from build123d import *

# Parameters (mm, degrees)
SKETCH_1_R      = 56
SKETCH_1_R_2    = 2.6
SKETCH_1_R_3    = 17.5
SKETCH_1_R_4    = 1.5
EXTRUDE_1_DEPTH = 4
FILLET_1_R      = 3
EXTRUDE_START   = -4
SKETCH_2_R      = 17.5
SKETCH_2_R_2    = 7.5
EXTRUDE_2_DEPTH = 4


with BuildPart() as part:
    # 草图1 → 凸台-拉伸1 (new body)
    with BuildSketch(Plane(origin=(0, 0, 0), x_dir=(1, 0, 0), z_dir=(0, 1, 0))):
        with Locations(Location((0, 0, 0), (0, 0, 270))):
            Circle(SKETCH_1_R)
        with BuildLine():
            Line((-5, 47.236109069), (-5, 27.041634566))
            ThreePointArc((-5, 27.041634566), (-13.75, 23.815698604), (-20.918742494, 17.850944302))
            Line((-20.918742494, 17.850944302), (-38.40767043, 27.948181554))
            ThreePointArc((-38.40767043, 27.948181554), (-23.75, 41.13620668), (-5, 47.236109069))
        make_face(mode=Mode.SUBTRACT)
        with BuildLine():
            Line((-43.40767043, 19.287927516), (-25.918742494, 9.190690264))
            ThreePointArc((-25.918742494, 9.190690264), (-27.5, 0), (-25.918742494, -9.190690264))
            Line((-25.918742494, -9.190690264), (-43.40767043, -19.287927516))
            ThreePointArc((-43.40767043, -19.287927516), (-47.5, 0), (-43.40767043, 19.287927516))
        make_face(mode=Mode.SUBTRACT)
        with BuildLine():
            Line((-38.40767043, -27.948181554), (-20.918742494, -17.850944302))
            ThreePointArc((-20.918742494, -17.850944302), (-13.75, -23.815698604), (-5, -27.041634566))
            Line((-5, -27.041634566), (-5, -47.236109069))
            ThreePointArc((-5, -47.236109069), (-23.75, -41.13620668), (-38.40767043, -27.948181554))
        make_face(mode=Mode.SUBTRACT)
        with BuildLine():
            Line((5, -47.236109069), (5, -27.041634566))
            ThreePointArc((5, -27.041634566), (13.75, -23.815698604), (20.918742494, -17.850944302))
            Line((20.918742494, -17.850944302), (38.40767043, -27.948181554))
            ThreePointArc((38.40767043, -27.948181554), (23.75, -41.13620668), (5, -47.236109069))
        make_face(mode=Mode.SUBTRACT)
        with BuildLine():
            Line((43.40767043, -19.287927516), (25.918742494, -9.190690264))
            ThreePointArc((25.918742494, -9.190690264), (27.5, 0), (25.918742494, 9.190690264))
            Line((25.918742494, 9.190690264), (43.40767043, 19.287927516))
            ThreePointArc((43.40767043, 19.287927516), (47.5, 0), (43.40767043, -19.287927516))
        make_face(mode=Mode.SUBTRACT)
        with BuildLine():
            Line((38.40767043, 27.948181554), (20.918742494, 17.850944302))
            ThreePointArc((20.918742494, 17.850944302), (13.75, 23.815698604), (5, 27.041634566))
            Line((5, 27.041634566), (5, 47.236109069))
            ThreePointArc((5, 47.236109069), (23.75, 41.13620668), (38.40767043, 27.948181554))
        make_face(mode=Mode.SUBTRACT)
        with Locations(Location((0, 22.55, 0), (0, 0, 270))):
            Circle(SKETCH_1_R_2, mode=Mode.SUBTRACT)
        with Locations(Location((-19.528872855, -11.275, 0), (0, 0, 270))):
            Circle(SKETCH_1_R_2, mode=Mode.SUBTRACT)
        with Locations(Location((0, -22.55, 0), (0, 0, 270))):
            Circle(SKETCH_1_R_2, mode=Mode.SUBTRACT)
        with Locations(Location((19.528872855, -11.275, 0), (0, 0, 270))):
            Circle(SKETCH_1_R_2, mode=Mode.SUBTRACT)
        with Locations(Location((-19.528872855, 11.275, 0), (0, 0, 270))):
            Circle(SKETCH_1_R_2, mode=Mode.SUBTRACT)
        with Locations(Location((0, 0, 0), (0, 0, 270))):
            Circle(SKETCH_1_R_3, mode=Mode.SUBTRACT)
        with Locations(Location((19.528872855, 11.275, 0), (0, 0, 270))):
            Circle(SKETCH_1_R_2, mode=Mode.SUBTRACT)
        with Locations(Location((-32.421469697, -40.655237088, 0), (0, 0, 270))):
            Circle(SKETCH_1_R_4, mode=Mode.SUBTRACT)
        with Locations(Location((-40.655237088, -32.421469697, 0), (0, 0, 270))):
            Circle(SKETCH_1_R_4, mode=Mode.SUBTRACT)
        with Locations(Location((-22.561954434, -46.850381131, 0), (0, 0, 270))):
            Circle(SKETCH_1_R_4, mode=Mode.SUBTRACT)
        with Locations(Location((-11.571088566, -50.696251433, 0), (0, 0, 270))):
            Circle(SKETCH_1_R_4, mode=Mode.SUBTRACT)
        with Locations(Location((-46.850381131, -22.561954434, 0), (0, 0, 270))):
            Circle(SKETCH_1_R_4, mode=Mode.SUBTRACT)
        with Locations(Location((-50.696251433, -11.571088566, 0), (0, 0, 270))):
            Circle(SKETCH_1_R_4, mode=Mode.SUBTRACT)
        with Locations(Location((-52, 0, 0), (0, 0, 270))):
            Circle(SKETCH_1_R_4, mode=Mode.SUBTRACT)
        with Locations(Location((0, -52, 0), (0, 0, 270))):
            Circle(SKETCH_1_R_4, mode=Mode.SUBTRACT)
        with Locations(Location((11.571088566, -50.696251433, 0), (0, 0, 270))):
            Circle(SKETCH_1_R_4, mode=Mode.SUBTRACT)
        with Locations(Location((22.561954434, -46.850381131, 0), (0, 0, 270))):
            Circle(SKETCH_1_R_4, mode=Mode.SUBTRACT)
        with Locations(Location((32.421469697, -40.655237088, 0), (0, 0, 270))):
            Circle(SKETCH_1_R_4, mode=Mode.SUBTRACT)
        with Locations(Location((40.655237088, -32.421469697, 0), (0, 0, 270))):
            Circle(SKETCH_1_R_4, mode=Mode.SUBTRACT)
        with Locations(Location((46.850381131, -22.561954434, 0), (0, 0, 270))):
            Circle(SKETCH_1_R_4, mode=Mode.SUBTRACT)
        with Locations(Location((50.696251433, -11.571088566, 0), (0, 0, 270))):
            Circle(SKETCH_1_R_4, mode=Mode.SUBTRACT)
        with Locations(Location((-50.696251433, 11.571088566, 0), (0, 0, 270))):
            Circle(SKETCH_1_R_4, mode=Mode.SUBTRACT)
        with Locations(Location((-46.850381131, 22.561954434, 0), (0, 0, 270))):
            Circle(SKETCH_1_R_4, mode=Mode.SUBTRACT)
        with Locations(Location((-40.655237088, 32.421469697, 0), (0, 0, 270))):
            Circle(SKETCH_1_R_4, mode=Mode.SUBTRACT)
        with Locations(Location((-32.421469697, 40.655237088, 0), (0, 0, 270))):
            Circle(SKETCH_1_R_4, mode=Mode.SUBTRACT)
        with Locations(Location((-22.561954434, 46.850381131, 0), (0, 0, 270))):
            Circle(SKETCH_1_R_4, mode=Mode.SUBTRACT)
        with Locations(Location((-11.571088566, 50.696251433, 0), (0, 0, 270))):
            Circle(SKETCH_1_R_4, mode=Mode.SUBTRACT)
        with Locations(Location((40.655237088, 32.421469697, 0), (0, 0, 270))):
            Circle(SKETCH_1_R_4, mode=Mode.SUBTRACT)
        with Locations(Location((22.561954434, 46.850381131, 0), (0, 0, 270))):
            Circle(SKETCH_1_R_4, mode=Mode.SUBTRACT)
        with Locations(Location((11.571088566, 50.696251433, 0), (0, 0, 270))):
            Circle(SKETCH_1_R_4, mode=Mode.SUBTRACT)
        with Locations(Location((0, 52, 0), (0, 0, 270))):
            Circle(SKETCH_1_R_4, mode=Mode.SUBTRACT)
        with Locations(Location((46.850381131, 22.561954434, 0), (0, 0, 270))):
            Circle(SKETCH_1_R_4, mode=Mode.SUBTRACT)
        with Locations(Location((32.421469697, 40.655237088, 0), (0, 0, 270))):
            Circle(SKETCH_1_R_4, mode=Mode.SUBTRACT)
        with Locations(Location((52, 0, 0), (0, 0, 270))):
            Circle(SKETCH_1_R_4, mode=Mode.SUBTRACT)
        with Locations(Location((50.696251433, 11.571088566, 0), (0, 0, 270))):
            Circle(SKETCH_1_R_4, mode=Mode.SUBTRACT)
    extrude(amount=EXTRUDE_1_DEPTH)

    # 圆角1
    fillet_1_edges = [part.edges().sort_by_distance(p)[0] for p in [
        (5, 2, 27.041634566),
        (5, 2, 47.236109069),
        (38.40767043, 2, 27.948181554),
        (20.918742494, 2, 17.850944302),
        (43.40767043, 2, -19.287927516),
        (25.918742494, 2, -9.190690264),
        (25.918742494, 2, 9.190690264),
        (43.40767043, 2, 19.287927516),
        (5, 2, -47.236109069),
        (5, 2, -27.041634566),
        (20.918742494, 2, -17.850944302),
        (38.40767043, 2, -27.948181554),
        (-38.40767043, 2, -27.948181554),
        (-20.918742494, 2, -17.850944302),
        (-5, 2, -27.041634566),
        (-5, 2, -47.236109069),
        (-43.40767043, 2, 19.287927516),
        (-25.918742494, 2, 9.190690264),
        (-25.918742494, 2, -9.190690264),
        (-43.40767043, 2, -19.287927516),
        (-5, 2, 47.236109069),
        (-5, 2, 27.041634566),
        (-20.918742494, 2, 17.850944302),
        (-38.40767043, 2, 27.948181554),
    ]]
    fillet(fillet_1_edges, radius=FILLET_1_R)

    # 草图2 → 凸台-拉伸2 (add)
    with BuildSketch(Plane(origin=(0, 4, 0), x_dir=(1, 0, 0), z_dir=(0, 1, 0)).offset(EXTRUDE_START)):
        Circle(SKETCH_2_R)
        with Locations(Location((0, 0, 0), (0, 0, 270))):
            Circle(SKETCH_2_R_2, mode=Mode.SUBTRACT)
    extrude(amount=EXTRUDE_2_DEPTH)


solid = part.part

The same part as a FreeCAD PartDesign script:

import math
import FreeCAD as App
import Part
import Sketcher
Q = App.Units.Quantity


def edges_at(feature, points):
    """Names of the edges that pass closest to the given points."""
    edges = feature.Shape.Edges
    near = lambda p: min(range(len(edges)), key=lambda i: edges[i].distToShape(Part.Vertex(*p))[0])
    return sorted({f"Edge{near(p) + 1}" for p in points})

doc = App.newDocument("Part")
body = doc.addObject("PartDesign::Body", "Body")

sketch1 = doc.addObject("Sketcher::SketchObject", "Sketch")
body.addObject(sketch1)
sketch1.AttachmentSupport = (doc.XZ_Plane, [""])
sketch1.MapMode = "FlatFace"
sketch1.addGeometry([
    Part.Circle(App.Vector(0, 0, 0), App.Vector(0, 0, 1), 56),
    Part.Circle(App.Vector(-40.655237, -32.42147, 0), App.Vector(0, 0, 1), 1.5),
    Part.Circle(App.Vector(-32.42147, -40.655237, 0), App.Vector(0, 0, 1), 1.5),
    Part.Circle(App.Vector(-46.850381, -22.561954, 0), App.Vector(0, 0, 1), 1.5),
    Part.Circle(App.Vector(-50.696251, -11.571089, 0), App.Vector(0, 0, 1), 1.5),
    Part.Circle(App.Vector(-22.561954, -46.850381, 0), App.Vector(0, 0, 1), 1.5),
    Part.ArcOfCircle(Part.Circle(App.Vector(0, 0, 0), App.Vector(0, 0, 1), 47.5), math.radians(-143.957672), math.radians(-96.042328)),
    Part.LineSegment(App.Vector(-5, -47.236109, 0), App.Vector(-5, -27.041635, 0)),
    Part.ArcOfCircle(Part.Circle(App.Vector(0, 0, 0), App.Vector(0, 0, 1), 27.5), math.radians(-139.524318), math.radians(-100.475682)),
    Part.LineSegment(App.Vector(-20.918742, -17.850944, 0), App.Vector(-38.40767, -27.948182, 0)),
    Part.Circle(App.Vector(-11.571089, -50.696251, 0), App.Vector(0, 0, 1), 1.5),
    Part.Circle(App.Vector(0, -52, 0), App.Vector(0, 0, 1), 1.5),
    Part.Circle(App.Vector(-19.528873, -11.275, 0), App.Vector(0, 0, 1), 2.6),
    Part.Circle(App.Vector(0, -22.55, 0), App.Vector(0, 0, 1), 2.6),
    Part.Circle(App.Vector(0, 0, 0), App.Vector(0, 0, 1), 17.5),
    Part.Circle(App.Vector(-52, 0, 0), App.Vector(0, 0, 1), 1.5),
    Part.Circle(App.Vector(-50.696251, 11.571089, 0), App.Vector(0, 0, 1), 1.5),
    Part.Circle(App.Vector(-46.850381, 22.561954, 0), App.Vector(0, 0, 1), 1.5),
    Part.ArcOfCircle(Part.Circle(App.Vector(0, 0, 0), App.Vector(0, 0, 1), 47.5), math.radians(156.042328), math.radians(203.957672)),
    Part.LineSegment(App.Vector(-43.40767, -19.287928, 0), App.Vector(-25.918742, -9.19069, 0)),
    Part.ArcOfCircle(Part.Circle(App.Vector(0, 0, 0), App.Vector(0, 0, 1), 27.5), math.radians(160.475682), math.radians(199.524318)),
    Part.LineSegment(App.Vector(-25.918742, 9.19069, 0), App.Vector(-43.40767, 19.287928, 0)),
    Part.Circle(App.Vector(-40.655237, 32.42147, 0), App.Vector(0, 0, 1), 1.5),
    Part.Circle(App.Vector(-32.42147, 40.655237, 0), App.Vector(0, 0, 1), 1.5),
    Part.Circle(App.Vector(-19.528873, 11.275, 0), App.Vector(0, 0, 1), 2.6),
    Part.ArcOfCircle(Part.Circle(App.Vector(0, 0, 0), App.Vector(0, 0, 1), 47.5), math.radians(96.042328), math.radians(143.957672)),
    Part.LineSegment(App.Vector(-38.40767, 27.948182, 0), App.Vector(-20.918742, 17.850944, 0)),
    Part.ArcOfCircle(Part.Circle(App.Vector(0, 0, 0), App.Vector(0, 0, 1), 27.5), math.radians(100.475682), math.radians(139.524318)),
    Part.LineSegment(App.Vector(-5, 27.041635, 0), App.Vector(-5, 47.236109, 0)),
    Part.Circle(App.Vector(-22.561954, 46.850381, 0), App.Vector(0, 0, 1), 1.5),
    Part.Circle(App.Vector(-11.571089, 50.696251, 0), App.Vector(0, 0, 1), 1.5),
    Part.Circle(App.Vector(11.571089, -50.696251, 0), App.Vector(0, 0, 1), 1.5),
    Part.Circle(App.Vector(22.561954, -46.850381, 0), App.Vector(0, 0, 1), 1.5),
    Part.ArcOfCircle(Part.Circle(App.Vector(0, 0, 0), App.Vector(0, 0, 1), 47.5), math.radians(-83.957672), math.radians(-36.042328)),
    Part.LineSegment(App.Vector(38.40767, -27.948182, 0), App.Vector(20.918742, -17.850944, 0)),
    Part.ArcOfCircle(Part.Circle(App.Vector(0, 0, 0), App.Vector(0, 0, 1), 27.5), math.radians(-79.524318), math.radians(-40.475682)),
    Part.LineSegment(App.Vector(5, -27.041635, 0), App.Vector(5, -47.236109, 0)),
    Part.Circle(App.Vector(19.528873, -11.275, 0), App.Vector(0, 0, 1), 2.6),
    Part.Circle(App.Vector(32.42147, -40.655237, 0), App.Vector(0, 0, 1), 1.5),
    Part.Circle(App.Vector(40.655237, -32.42147, 0), App.Vector(0, 0, 1), 1.5),
    Part.ArcOfCircle(Part.Circle(App.Vector(0, 0, 0), App.Vector(0, 0, 1), 47.5), math.radians(-23.957672), math.radians(23.957672)),
    Part.LineSegment(App.Vector(43.40767, 19.287928, 0), App.Vector(25.918742, 9.19069, 0)),
    Part.ArcOfCircle(Part.Circle(App.Vector(0, 0, 0), App.Vector(0, 0, 1), 27.5), math.radians(-19.524318), math.radians(19.524318)),
    Part.LineSegment(App.Vector(25.918742, -9.19069, 0), App.Vector(43.40767, -19.287928, 0)),
    Part.Circle(App.Vector(46.850381, -22.561954, 0), App.Vector(0, 0, 1), 1.5),
    Part.Circle(App.Vector(50.696251, -11.571089, 0), App.Vector(0, 0, 1), 1.5),
    Part.Circle(App.Vector(52, 0, 0), App.Vector(0, 0, 1), 1.5),
    Part.Circle(App.Vector(0, 22.55, 0), App.Vector(0, 0, 1), 2.6),
    Part.Circle(App.Vector(19.528873, 11.275, 0), App.Vector(0, 0, 1), 2.6),
    Part.Circle(App.Vector(0, 52, 0), App.Vector(0, 0, 1), 1.5),
    Part.Circle(App.Vector(11.571089, 50.696251, 0), App.Vector(0, 0, 1), 1.5),
    Part.ArcOfCircle(Part.Circle(App.Vector(0, 0, 0), App.Vector(0, 0, 1), 47.5), math.radians(36.042328), math.radians(83.957672)),
    Part.LineSegment(App.Vector(5, 47.236109, 0), App.Vector(5, 27.041635, 0)),
    Part.ArcOfCircle(Part.Circle(App.Vector(0, 0, 0), App.Vector(0, 0, 1), 27.5), math.radians(40.475682), math.radians(79.524318)),
    Part.LineSegment(App.Vector(20.918742, 17.850944, 0), App.Vector(38.40767, 27.948182, 0)),
    Part.Circle(App.Vector(22.561954, 46.850381, 0), App.Vector(0, 0, 1), 1.5),
    Part.Circle(App.Vector(50.696251, 11.571089, 0), App.Vector(0, 0, 1), 1.5),
    Part.Circle(App.Vector(46.850381, 22.561954, 0), App.Vector(0, 0, 1), 1.5),
    Part.Circle(App.Vector(32.42147, 40.655237, 0), App.Vector(0, 0, 1), 1.5),
    Part.Circle(App.Vector(40.655237, 32.42147, 0), App.Vector(0, 0, 1), 1.5),
], False)
sketch1.addConstraint([
    Sketcher.Constraint("Coincident", 6, 2, 7, 1),
    Sketcher.Constraint("Coincident", 7, 2, 8, 2),
    Sketcher.Constraint("Coincident", 8, 1, 9, 1),
    Sketcher.Constraint("Coincident", 9, 2, 6, 1),
    Sketcher.Constraint("Coincident", 18, 2, 19, 1),
    Sketcher.Constraint("Coincident", 19, 2, 20, 2),
    Sketcher.Constraint("Coincident", 20, 1, 21, 1),
    Sketcher.Constraint("Coincident", 21, 2, 18, 1),
    Sketcher.Constraint("Coincident", 25, 2, 26, 1),
    Sketcher.Constraint("Coincident", 26, 2, 27, 2),
    Sketcher.Constraint("Coincident", 27, 1, 28, 1),
    Sketcher.Constraint("Coincident", 28, 2, 25, 1),
    Sketcher.Constraint("Coincident", 33, 2, 34, 1),
    Sketcher.Constraint("Coincident", 34, 2, 35, 2),
    Sketcher.Constraint("Coincident", 35, 1, 36, 1),
    Sketcher.Constraint("Coincident", 36, 2, 33, 1),
    Sketcher.Constraint("Coincident", 40, 2, 41, 1),
    Sketcher.Constraint("Coincident", 41, 2, 42, 2),
    Sketcher.Constraint("Coincident", 42, 1, 43, 1),
    Sketcher.Constraint("Coincident", 43, 2, 40, 1),
    Sketcher.Constraint("Coincident", 51, 2, 52, 1),
    Sketcher.Constraint("Coincident", 52, 2, 53, 2),
    Sketcher.Constraint("Coincident", 53, 1, 54, 1),
    Sketcher.Constraint("Coincident", 54, 2, 51, 1),
    Sketcher.Constraint("Vertical", 7),
    Sketcher.Constraint("Vertical", 28),
    Sketcher.Constraint("Vertical", 36),
    Sketcher.Constraint("Vertical", 52),
    Sketcher.Constraint("Coincident", 0, 3, -1, 1),
    Sketcher.Constraint("Coincident", 6, 3, -1, 1),
    Sketcher.Constraint("Coincident", 8, 3, -1, 1),
    Sketcher.Constraint("Coincident", 14, 3, -1, 1),
    Sketcher.Constraint("Coincident", 18, 3, -1, 1),
    Sketcher.Constraint("Coincident", 20, 3, -1, 1),
    Sketcher.Constraint("Coincident", 25, 3, -1, 1),
    Sketcher.Constraint("Coincident", 27, 3, -1, 1),
    Sketcher.Constraint("Coincident", 33, 3, -1, 1),
    Sketcher.Constraint("Coincident", 35, 3, -1, 1),
    Sketcher.Constraint("Coincident", 40, 3, -1, 1),
    Sketcher.Constraint("Coincident", 42, 3, -1, 1),
    Sketcher.Constraint("Coincident", 51, 3, -1, 1),
    Sketcher.Constraint("Coincident", 53, 3, -1, 1),
    Sketcher.Constraint("Equal", 1, 2),
    Sketcher.Constraint("Equal", 2, 3),
    Sketcher.Constraint("Equal", 3, 4),
    Sketcher.Constraint("Equal", 4, 5),
    Sketcher.Constraint("Equal", 5, 10),
    Sketcher.Constraint("Equal", 10, 11),
    Sketcher.Constraint("Equal", 12, 13),
    Sketcher.Constraint("Equal", 11, 15),
    Sketcher.Constraint("Equal", 15, 16),
    Sketcher.Constraint("Equal", 16, 17),
    Sketcher.Constraint("Equal", 6, 18),
    Sketcher.Constraint("Equal", 8, 20),
    Sketcher.Constraint("Equal", 17, 22),
    Sketcher.Constraint("Equal", 22, 23),
    Sketcher.Constraint("Equal", 13, 24),
    Sketcher.Constraint("Equal", 18, 25),
    Sketcher.Constraint("Equal", 20, 27),
    Sketcher.Constraint("Equal", 23, 29),
    Sketcher.Constraint("Equal", 29, 30),
    Sketcher.Constraint("Equal", 30, 31),
    Sketcher.Constraint("Equal", 31, 32),
    Sketcher.Constraint("Equal", 25, 33),
    Sketcher.Constraint("Equal", 27, 35),
    Sketcher.Constraint("Equal", 24, 37),
    Sketcher.Constraint("Equal", 32, 38),
    Sketcher.Constraint("Equal", 38, 39),
    Sketcher.Constraint("Equal", 33, 40),
    Sketcher.Constraint("Equal", 35, 42),
    Sketcher.Constraint("Equal", 39, 44),
    Sketcher.Constraint("Equal", 44, 45),
    Sketcher.Constraint("Equal", 45, 46),
    Sketcher.Constraint("Equal", 37, 47),
    Sketcher.Constraint("Equal", 47, 48),
    Sketcher.Constraint("Equal", 46, 49),
    Sketcher.Constraint("Equal", 49, 50),
    Sketcher.Constraint("Equal", 40, 51),
    Sketcher.Constraint("Equal", 42, 53),
    Sketcher.Constraint("Equal", 50, 55),
    Sketcher.Constraint("Equal", 55, 56),
    Sketcher.Constraint("Equal", 56, 57),
    Sketcher.Constraint("Equal", 57, 58),
    Sketcher.Constraint("Equal", 58, 59),
    Sketcher.Constraint("Symmetric", 30, 3, 31, 3, -1, 1),
    Sketcher.Constraint("Symmetric", 29, 3, 32, 3, -1, 1),
    Sketcher.Constraint("Symmetric", 24, 3, 37, 3, -1, 1),
    Sketcher.Constraint("Symmetric", 23, 3, 38, 3, -1, 1),
    Sketcher.Constraint("Symmetric", 22, 3, 39, 3, -1, 1),
    Sketcher.Constraint("Symmetric", 17, 3, 44, 3, -1, 1),
    Sketcher.Constraint("Symmetric", 16, 3, 45, 3, -1, 1),
    Sketcher.Constraint("Symmetric", 15, 3, 46, 3, -1, 1),
    Sketcher.Constraint("Symmetric", 13, 3, 47, 3, -1, 1),
    Sketcher.Constraint("Symmetric", 12, 3, 48, 3, -1, 1),
    Sketcher.Constraint("Symmetric", 11, 3, 49, 3, -1, 1),
    Sketcher.Constraint("Symmetric", 10, 3, 50, 3, -1, 1),
    Sketcher.Constraint("Symmetric", 5, 3, 55, 3, -1, 1),
    Sketcher.Constraint("Symmetric", 4, 3, 56, 3, -1, 1),
    Sketcher.Constraint("Symmetric", 3, 3, 57, 3, -1, 1),
    Sketcher.Constraint("Symmetric", 2, 3, 58, 3, -1, 1),
    Sketcher.Constraint("Symmetric", 1, 3, 59, 3, -1, 1),
    Sketcher.Constraint("Symmetric", 10, 3, 31, 3, -2),
    Sketcher.Constraint("Symmetric", 5, 3, 32, 3, -2),
    Sketcher.Constraint("Symmetric", 12, 3, 37, 3, -2),
    Sketcher.Constraint("Symmetric", 2, 3, 38, 3, -2),
    Sketcher.Constraint("Symmetric", 1, 3, 39, 3, -2),
    Sketcher.Constraint("Symmetric", 3, 3, 44, 3, -2),
    Sketcher.Constraint("Symmetric", 4, 3, 45, 3, -2),
    Sketcher.Constraint("PointOnObject", 11, 3, -2),
    Sketcher.Constraint("PointOnObject", 13, 3, -2),
    Sketcher.Constraint("PointOnObject", 15, 3, -1),
    Sketcher.Constraint("Parallel", 9, 19),
    Sketcher.Constraint("Parallel", 21, 26),
    Sketcher.Constraint("Parallel", 26, 34),
    Sketcher.Constraint("Parallel", 19, 41),
    Sketcher.Constraint("Parallel", 34, 43),
    Sketcher.Constraint("Parallel", 41, 54),
    Sketcher.Constraint("Horizontal", 9, 2, 33, 2),
    Sketcher.Constraint("Horizontal", 8, 1, 34, 2),
    Sketcher.Constraint("Horizontal", 7, 2, 35, 1),
    Sketcher.Constraint("Horizontal", 21, 2, 40, 2),
    Sketcher.Constraint("Horizontal", 19, 2, 42, 1),
    Sketcher.Constraint("Horizontal", 28, 2, 51, 2),
    Sketcher.Constraint("Horizontal", 26, 2, 53, 1),
    Sketcher.Constraint("Vertical", 19, 2, 20, 1),
    Sketcher.Constraint("Vertical", 9, 2, 25, 2),
    Sketcher.Constraint("Vertical", 7, 2, 27, 1),
    Sketcher.Constraint("Equal", 9, 19),
    Sketcher.Constraint("Diameter", 0, Q("112 mm")),
    Sketcher.Constraint("Diameter", 1, Q("3 mm")),
    Sketcher.Constraint("Diameter", 14, Q("35 mm")),
    Sketcher.Constraint("Diameter", 12, Q("5.2 mm")),
    Sketcher.Constraint("Radius", 6, Q("47.5 mm")),
    Sketcher.Constraint("Radius", 8, Q("27.5 mm")),
    Sketcher.Constraint("Angle", 9, Q("-150 deg")),
    Sketcher.Constraint("DistanceY", 11, 3, -1, 1, Q("52 mm")),
    Sketcher.Constraint("DistanceX", 15, 3, -1, 1, Q("52 mm")),
    Sketcher.Constraint("DistanceX", 6, 2, -1, 1, Q("5 mm")),
    Sketcher.Constraint("DistanceY", 13, 3, -1, 1, Q("22.55 mm")),
    Sketcher.Constraint("DistanceY", 12, 3, -1, 1, Q("11.275 mm")),
    Sketcher.Constraint("DistanceY", 1, 3, -1, 1, Q("32.42147 mm")),
    Sketcher.Constraint("DistanceX", 2, 3, -1, 1, Q("32.42147 mm")),
    Sketcher.Constraint("DistanceX", 3, 3, -1, 1, Q("46.850381 mm")),
    Sketcher.Constraint("DistanceX", 4, 3, -1, 1, Q("50.696251 mm")),
    Sketcher.Constraint("DistanceY", 4, 3, -1, 1, Q("11.571089 mm")),
    Sketcher.Constraint("DistanceY", 5, 3, -1, 1, Q("46.850381 mm")),
    Sketcher.Constraint("DistanceX", 10, 3, -1, 1, Q("11.571089 mm")),
    Sketcher.Constraint("DistanceY", 10, 3, -1, 1, Q("50.696251 mm")),
    Sketcher.Constraint("DistanceX", 9, 2, -1, 1, Q("38.40767 mm")),
    Sketcher.Constraint("DistanceX", 1, 3, -1, 1, Q("40.655237 mm")),
    Sketcher.Constraint("DistanceY", 2, 3, -1, 1, Q("40.655237 mm")),
    Sketcher.Constraint("DistanceY", 3, 3, -1, 1, Q("22.561954 mm")),
    Sketcher.Constraint("DistanceX", 5, 3, -1, 1, Q("22.561954 mm")),
    Sketcher.Constraint("DistanceX", 12, 3, -1, 1, Q("19.528873 mm")),
])
pad1 = doc.addObject("PartDesign::Pad", "Pad")
body.addObject(pad1)
pad1.Profile = sketch1
pad1.Length = 4
pad1.Reversed = True
doc.recompute()

fillet = doc.addObject("PartDesign::Fillet", "Fillet")
body.addObject(fillet)
fillet.Base = (pad1, edges_at(pad1, [
    (5, 2, 27.042),
    (5, 2, 47.236),
    (38.408, 2, 27.948),
    (20.919, 2, 17.851),
    (43.408, 2, -19.288),
    (25.919, 2, -9.191),
    (25.919, 2, 9.191),
    (43.408, 2, 19.288),
    (5, 2, -47.236),
    (5, 2, -27.042),
    (20.919, 2, -17.851),
    (38.408, 2, -27.948),
    (-38.408, 2, -27.948),
    (-20.919, 2, -17.851),
    (-5, 2, -27.042),
    (-5, 2, -47.236),
    (-43.408, 2, 19.288),
    (-25.919, 2, 9.191),
    (-25.919, 2, -9.191),
    (-43.408, 2, -19.288),
    (-5, 2, 47.236),
    (-5, 2, 27.042),
    (-20.919, 2, 17.851),
    (-38.408, 2, 27.948),
]))
fillet.Radius = 3

sketch2 = doc.addObject("Sketcher::SketchObject", "Sketch001")
body.addObject(sketch2)
sketch2.AttachmentSupport = (doc.XZ_Plane, [""])
sketch2.MapMode = "FlatFace"
sketch2.addGeometry([
    Part.Circle(App.Vector(0, 0, 0), App.Vector(0, 0, 1), 17.5),
    Part.Circle(App.Vector(0, 0, 0), App.Vector(0, 0, 1), 7.5),
], False)
sketch2.addConstraint([
    Sketcher.Constraint("Coincident", 0, 3, -1, 1),
    Sketcher.Constraint("Coincident", 1, 3, -1, 1),
    Sketcher.Constraint("Diameter", 0, Q("35 mm")),
    Sketcher.Constraint("Diameter", 1, Q("15 mm")),
])
pad2 = doc.addObject("PartDesign::Pad", "Pad001")
body.addObject(pad2)
pad2.Profile = sketch2
pad2.Length = 4
pad2.Reversed = True

doc.recompute()
